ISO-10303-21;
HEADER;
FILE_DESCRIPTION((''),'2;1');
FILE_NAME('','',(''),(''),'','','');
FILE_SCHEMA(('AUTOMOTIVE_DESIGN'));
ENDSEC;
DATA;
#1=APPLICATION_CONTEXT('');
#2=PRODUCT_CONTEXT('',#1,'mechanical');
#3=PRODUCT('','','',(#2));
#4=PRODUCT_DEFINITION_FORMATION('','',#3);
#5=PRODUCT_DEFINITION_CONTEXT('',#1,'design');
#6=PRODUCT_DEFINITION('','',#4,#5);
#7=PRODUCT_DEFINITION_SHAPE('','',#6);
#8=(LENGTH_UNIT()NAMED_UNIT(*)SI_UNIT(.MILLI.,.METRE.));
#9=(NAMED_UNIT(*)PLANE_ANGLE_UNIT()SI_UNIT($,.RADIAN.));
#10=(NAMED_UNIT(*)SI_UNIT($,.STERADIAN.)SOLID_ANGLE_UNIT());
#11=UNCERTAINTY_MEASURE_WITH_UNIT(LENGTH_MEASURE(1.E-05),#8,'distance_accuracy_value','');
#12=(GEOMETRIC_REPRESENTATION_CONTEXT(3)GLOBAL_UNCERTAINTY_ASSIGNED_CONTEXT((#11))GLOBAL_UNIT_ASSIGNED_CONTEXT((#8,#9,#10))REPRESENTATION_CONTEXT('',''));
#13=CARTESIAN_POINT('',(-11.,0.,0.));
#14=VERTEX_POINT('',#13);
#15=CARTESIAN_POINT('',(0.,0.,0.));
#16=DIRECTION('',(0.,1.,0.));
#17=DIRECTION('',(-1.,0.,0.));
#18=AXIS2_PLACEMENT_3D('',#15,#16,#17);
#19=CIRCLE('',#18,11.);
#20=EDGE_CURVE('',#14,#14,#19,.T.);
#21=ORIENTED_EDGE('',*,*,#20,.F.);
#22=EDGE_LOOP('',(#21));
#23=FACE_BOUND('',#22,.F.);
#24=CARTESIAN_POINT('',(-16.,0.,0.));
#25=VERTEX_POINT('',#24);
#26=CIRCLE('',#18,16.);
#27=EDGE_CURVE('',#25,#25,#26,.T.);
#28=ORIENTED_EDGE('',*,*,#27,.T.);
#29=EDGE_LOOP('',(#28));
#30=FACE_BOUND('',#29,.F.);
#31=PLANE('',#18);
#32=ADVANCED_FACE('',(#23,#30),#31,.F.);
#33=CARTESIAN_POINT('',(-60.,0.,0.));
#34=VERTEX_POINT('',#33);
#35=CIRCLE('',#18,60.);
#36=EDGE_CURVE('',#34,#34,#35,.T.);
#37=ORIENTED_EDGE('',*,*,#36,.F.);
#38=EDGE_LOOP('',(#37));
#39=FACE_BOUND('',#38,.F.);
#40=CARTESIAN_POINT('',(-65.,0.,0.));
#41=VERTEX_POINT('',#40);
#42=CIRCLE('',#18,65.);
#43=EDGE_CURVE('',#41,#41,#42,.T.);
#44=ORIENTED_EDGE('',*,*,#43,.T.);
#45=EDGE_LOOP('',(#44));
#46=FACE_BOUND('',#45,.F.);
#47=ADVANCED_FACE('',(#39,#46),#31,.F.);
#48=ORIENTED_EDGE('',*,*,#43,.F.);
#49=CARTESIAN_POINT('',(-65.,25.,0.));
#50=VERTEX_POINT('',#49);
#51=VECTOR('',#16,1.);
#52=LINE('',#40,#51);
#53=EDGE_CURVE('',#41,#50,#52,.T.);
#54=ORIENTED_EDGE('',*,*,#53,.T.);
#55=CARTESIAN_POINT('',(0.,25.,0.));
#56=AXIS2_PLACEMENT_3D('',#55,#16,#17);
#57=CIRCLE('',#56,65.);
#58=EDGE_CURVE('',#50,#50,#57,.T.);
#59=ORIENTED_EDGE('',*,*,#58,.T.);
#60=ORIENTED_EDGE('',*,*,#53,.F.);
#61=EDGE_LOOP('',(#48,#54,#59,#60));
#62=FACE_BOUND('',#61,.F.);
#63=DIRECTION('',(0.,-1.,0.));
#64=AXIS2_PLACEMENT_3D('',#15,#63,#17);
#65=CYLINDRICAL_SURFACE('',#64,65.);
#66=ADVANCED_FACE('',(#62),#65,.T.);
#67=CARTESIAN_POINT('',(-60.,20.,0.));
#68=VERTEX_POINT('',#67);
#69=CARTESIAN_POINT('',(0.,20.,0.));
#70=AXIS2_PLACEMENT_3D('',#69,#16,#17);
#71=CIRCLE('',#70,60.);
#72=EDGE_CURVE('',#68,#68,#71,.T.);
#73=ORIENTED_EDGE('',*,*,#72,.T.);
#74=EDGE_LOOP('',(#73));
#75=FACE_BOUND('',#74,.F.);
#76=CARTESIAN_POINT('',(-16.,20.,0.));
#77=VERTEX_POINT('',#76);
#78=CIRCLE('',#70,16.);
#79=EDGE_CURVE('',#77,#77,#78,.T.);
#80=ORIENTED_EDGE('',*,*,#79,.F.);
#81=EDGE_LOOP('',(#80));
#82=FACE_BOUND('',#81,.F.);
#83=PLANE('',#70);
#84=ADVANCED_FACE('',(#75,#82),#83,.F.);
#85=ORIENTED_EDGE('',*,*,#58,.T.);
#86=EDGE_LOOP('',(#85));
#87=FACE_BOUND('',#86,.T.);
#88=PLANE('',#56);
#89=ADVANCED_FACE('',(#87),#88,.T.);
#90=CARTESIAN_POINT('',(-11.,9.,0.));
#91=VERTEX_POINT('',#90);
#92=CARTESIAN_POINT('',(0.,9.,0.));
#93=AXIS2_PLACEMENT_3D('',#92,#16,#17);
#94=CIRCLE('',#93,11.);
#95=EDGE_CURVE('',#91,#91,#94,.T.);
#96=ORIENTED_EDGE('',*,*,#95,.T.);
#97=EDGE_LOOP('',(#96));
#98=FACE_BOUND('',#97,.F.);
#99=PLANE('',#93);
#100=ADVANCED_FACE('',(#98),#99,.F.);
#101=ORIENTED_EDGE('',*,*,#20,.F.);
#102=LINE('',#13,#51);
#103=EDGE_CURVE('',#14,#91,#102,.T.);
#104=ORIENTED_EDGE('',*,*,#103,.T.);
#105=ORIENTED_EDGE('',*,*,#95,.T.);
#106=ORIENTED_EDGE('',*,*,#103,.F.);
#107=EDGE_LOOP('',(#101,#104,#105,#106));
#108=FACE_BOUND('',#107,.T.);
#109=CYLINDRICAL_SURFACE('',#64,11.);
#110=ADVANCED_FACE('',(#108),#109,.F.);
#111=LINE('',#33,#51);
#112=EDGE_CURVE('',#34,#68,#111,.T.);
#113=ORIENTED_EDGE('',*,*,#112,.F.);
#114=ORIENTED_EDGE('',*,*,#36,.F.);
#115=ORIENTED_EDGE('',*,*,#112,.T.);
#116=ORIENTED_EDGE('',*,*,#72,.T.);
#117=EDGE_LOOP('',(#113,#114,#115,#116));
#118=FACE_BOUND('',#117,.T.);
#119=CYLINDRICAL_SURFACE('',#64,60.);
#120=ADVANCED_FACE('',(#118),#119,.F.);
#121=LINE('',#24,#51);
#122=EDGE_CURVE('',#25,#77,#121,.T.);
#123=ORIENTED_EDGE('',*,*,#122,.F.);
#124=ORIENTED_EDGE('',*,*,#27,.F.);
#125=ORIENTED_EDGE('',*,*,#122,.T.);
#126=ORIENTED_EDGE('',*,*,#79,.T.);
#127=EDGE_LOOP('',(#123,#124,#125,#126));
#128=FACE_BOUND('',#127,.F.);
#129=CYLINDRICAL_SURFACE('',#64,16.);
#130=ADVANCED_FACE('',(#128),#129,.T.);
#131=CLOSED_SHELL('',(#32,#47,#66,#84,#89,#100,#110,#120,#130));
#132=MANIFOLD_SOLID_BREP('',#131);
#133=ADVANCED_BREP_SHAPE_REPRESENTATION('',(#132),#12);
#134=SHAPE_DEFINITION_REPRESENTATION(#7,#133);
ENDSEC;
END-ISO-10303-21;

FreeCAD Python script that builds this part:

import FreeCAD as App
import Part
import Sketcher
from FreeCAD import Vector

doc = App.newDocument("Part")
body = doc.addObject("PartDesign::Body", "Body")

# Sketch on XZ plane
sketch1 = body.newObject("Sketcher::SketchObject", "Sketch")
sketch1.AttachmentSupport = (doc.getObject("XZ_Plane"), [""])
sketch1.MapMode = "FlatFace"
sketch1.addGeometry(Part.Circle(Vector(0, 0, 0), Vector(0, 0, 1), 65), False)
sketch1.addConstraint(Sketcher.Constraint("Coincident", 0, 3, -1, 1))
sketch1.addConstraint(Sketcher.Constraint("Diameter", 0, 130.0))
pad1 = body.newObject("PartDesign::Pad", "Pad")
pad1.Profile = sketch1
pad1.Length = 25
pad1.Reversed = True

# Sketch on XZ plane
sketch2 = body.newObject("Sketcher::SketchObject", "Sketch001")
sketch2.AttachmentSupport = (doc.getObject("XZ_Plane"), [""])
sketch2.MapMode = "FlatFace"
sketch2.addGeometry(Part.Circle(Vector(0, 0, 0), Vector(0, 0, 1), 60), False)
sketch2.addGeometry(Part.Circle(Vector(0, 0, 0), Vector(0, 0, 1), 16), False)
sketch2.addConstraint(Sketcher.Constraint("Coincident", 0, 3, -1, 1))
sketch2.addConstraint(Sketcher.Constraint("Coincident", 1, 3, -1, 1))
sketch2.addConstraint(Sketcher.Constraint("Diameter", 0, 120.0))
sketch2.addConstraint(Sketcher.Constraint("Diameter", 1, 32.0))
pocket1 = body.newObject("PartDesign::Pocket", "Pocket")
pocket1.Profile = sketch2
pocket1.Length = 20

# Sketch on XZ plane
sketch3 = body.newObject("Sketcher::SketchObject", "Sketch002")
sketch3.AttachmentSupport = (doc.getObject("XZ_Plane"), [""])
sketch3.MapMode = "FlatFace"
sketch3.addGeometry(Part.Circle(Vector(0, 0, 0), Vector(0, 0, 1), 11), False)
sketch3.addConstraint(Sketcher.Constraint("Coincident", 0, 3, -1, 1))
sketch3.addConstraint(Sketcher.Constraint("Diameter", 0, 22.0))
pocket2 = body.newObject("PartDesign::Pocket", "Pocket001")
pocket2.Profile = sketch3
pocket2.Length = 9

doc.recompute()
